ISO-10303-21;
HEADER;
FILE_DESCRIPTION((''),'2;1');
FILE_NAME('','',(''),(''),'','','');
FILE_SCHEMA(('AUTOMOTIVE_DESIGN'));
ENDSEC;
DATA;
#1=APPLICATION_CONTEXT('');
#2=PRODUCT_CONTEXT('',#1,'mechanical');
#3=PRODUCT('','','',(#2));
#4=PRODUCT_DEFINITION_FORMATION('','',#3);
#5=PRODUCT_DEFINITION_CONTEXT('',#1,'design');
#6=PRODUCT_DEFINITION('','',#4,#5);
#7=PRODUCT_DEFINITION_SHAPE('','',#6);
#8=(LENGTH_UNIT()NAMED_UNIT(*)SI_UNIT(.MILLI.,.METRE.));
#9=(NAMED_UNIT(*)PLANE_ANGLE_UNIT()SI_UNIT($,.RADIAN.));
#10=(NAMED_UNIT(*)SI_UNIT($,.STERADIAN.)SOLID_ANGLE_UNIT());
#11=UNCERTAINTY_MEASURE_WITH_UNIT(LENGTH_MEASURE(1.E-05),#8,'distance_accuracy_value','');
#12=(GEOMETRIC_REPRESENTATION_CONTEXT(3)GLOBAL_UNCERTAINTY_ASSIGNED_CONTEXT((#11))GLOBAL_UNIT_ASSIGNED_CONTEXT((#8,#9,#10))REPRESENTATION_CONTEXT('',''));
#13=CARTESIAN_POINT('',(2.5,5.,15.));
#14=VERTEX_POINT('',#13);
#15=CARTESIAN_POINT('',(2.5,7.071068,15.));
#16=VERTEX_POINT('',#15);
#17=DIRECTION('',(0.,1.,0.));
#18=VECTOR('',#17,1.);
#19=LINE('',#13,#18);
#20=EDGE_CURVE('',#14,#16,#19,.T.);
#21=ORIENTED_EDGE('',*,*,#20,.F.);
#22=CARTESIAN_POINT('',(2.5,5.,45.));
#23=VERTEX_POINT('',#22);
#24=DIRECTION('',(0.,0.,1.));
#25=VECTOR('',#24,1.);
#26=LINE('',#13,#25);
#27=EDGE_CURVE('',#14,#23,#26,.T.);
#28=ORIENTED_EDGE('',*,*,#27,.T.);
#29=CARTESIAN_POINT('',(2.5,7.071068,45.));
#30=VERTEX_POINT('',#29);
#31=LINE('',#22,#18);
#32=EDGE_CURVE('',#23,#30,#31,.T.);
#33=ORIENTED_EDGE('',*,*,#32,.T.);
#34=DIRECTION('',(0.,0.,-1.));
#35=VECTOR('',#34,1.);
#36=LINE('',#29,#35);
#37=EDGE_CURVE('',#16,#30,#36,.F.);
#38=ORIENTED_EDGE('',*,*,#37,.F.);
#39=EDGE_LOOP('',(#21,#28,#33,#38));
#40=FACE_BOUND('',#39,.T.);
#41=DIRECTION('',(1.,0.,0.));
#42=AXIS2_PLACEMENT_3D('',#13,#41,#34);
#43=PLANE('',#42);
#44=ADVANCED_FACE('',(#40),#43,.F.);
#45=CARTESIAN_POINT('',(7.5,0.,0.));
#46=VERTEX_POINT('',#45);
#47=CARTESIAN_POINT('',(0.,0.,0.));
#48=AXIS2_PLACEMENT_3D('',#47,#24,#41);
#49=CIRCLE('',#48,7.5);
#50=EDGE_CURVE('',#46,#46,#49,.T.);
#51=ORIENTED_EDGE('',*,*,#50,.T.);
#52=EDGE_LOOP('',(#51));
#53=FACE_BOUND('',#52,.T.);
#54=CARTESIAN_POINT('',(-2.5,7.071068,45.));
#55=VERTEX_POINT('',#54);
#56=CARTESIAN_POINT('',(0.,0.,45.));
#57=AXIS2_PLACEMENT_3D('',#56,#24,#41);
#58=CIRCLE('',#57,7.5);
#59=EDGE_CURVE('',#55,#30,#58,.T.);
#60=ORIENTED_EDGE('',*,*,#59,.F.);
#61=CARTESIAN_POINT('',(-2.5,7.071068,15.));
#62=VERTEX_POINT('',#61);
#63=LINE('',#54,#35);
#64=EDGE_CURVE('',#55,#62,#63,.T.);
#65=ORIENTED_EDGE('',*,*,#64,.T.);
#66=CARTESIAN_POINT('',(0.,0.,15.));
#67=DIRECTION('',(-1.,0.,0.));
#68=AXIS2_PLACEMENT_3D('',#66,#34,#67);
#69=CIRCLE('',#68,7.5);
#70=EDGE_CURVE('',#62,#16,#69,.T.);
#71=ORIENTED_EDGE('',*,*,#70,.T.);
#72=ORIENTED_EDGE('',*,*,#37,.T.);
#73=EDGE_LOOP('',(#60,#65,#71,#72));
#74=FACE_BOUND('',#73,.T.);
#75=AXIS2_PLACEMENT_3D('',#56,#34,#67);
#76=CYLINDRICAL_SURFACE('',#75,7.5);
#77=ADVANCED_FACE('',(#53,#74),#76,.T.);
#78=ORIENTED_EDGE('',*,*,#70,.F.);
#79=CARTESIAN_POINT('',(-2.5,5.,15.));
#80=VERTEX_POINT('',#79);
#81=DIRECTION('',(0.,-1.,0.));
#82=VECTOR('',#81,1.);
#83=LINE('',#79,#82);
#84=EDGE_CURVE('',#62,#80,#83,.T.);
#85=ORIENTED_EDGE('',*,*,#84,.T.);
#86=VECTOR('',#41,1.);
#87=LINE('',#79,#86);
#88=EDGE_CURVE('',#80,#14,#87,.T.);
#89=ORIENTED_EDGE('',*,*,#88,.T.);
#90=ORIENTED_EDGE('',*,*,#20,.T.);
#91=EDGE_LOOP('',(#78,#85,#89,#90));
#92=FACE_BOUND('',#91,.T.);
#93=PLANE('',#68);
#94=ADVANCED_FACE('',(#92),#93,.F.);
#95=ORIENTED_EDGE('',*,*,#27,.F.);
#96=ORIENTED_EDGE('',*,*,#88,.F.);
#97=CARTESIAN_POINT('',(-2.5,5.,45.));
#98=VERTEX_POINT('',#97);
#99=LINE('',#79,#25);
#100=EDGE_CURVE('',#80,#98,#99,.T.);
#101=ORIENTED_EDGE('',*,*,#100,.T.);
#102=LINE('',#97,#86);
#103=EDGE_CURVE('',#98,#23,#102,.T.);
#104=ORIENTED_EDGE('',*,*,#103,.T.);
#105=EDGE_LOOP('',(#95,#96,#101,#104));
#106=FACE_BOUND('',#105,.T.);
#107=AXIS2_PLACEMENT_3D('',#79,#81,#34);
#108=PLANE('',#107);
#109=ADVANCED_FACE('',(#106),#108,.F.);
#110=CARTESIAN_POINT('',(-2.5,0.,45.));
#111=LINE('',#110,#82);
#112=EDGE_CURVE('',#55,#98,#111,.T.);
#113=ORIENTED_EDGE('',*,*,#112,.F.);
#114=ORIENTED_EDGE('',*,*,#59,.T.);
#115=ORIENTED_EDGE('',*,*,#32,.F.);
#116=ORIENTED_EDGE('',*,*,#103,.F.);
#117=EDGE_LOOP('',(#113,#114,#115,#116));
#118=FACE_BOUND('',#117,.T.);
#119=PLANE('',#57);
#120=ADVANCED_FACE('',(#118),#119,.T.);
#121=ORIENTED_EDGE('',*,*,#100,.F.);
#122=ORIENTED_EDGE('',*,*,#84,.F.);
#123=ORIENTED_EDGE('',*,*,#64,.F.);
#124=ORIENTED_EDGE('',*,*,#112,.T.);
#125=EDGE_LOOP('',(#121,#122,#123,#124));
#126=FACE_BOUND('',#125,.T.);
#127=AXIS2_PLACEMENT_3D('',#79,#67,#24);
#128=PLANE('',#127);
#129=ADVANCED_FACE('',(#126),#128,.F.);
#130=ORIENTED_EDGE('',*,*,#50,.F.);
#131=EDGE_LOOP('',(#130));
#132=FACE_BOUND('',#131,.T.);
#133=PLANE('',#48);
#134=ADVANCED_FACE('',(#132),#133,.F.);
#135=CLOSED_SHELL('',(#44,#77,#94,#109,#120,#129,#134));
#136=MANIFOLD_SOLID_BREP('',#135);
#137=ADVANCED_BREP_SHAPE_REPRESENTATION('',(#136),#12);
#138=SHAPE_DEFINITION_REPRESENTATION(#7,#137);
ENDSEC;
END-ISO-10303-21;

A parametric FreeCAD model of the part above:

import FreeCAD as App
import Part
import Sketcher

V = App.Vector

doc = App.newDocument("Part")
params = doc.addObject("Spreadsheet::Sheet", "Params")
for row, (alias, value) in enumerate([
    ("sketch1_diameter", "15 mm"),
    ("pad1_length", "45 mm"),
    ("sketch2_width", "5 mm"),
    ("pocket1_length", "30 mm"),
], start=1):
    params.set(f"A{row}", alias)
    params.set(f"B{row}", "=" + value)
    params.setAlias(f"B{row}", alias)

body = doc.addObject("PartDesign::Body", "Body")

sketch1 = doc.addObject("Sketcher::SketchObject", "Sketch")
body.addObject(sketch1)
sketch1.AttachmentSupport = (doc.XY_Plane, [""])
sketch1.MapMode = "FlatFace"
sketch1.addGeometry(Part.Circle(V(0, 0, 0), V(0, 0, 1), 8), False)
sketch1.addConstraint(Sketcher.Constraint("Coincident", 0, 3, -1, 1))
sketch1.addConstraint(Sketcher.Constraint("Diameter", 0, 15.0))
sketch1.setExpression("Constraints[1]", "Params.sketch1_diameter")
pad1 = doc.addObject("PartDesign::Pad", "Pad")
body.addObject(pad1)
pad1.Profile = sketch1
pad1.setExpression("Length", "Params.pad1_length")

sketch2 = doc.addObject("Sketcher::SketchObject", "Sketch001")
body.addObject(sketch2)
sketch2.AttachmentSupport = (doc.XY_Plane, [""])
sketch2.MapMode = "FlatFace"
sketch2.AttachmentOffset = App.Placement(V(0, 0, 45), App.Rotation())
sketch2.addGeometry(Part.LineSegment(V(-2.5, 9.5, 0), V(-2.5, 5, 0)), False)
sketch2.addGeometry(Part.LineSegment(V(-2.5, 5, 0), V(2.5, 5, 0)), False)
sketch2.addGeometry(Part.LineSegment(V(2.5, 5, 0), V(2.5, 9.5, 0)), False)
sketch2.addGeometry(Part.LineSegment(V(2.5, 9.5, 0), V(-2.5, 9.5, 0)), False)
sketch2.addConstraint(Sketcher.Constraint("Coincident", 0, 2, 1, 1))
sketch2.addConstraint(Sketcher.Constraint("Coincident", 1, 2, 2, 1))
sketch2.addConstraint(Sketcher.Constraint("Coincident", 2, 2, 3, 1))
sketch2.addConstraint(Sketcher.Constraint("Coincident", 3, 2, 0, 1))
sketch2.addConstraint(Sketcher.Constraint("Vertical", 0))
sketch2.addConstraint(Sketcher.Constraint("Horizontal", 1))
sketch2.addConstraint(Sketcher.Constraint("Vertical", 2))
sketch2.addConstraint(Sketcher.Constraint("Horizontal", 3))
sketch2.addConstraint(Sketcher.Constraint("DistanceX", 1, 1, 1, 2, 5.0))
sketch2.addConstraint(Sketcher.Constraint("DistanceY", -1, 1, 0, 2, 5.0))
sketch2.addConstraint(Sketcher.Constraint("DistanceX", 0, 2, -1, 1, 2.5))
sketch2.addConstraint(Sketcher.Constraint("DistanceY", 0, 2, 0, 1, 4.459976))
sketch2.setExpression("Constraints[8]", "Params.sketch2_width")
pocket1 = doc.addObject("PartDesign::Pocket", "Pocket")
body.addObject(pocket1)
pocket1.Profile = sketch2
pocket1.setExpression("Length", "Params.pocket1_length")

doc.recompute()
